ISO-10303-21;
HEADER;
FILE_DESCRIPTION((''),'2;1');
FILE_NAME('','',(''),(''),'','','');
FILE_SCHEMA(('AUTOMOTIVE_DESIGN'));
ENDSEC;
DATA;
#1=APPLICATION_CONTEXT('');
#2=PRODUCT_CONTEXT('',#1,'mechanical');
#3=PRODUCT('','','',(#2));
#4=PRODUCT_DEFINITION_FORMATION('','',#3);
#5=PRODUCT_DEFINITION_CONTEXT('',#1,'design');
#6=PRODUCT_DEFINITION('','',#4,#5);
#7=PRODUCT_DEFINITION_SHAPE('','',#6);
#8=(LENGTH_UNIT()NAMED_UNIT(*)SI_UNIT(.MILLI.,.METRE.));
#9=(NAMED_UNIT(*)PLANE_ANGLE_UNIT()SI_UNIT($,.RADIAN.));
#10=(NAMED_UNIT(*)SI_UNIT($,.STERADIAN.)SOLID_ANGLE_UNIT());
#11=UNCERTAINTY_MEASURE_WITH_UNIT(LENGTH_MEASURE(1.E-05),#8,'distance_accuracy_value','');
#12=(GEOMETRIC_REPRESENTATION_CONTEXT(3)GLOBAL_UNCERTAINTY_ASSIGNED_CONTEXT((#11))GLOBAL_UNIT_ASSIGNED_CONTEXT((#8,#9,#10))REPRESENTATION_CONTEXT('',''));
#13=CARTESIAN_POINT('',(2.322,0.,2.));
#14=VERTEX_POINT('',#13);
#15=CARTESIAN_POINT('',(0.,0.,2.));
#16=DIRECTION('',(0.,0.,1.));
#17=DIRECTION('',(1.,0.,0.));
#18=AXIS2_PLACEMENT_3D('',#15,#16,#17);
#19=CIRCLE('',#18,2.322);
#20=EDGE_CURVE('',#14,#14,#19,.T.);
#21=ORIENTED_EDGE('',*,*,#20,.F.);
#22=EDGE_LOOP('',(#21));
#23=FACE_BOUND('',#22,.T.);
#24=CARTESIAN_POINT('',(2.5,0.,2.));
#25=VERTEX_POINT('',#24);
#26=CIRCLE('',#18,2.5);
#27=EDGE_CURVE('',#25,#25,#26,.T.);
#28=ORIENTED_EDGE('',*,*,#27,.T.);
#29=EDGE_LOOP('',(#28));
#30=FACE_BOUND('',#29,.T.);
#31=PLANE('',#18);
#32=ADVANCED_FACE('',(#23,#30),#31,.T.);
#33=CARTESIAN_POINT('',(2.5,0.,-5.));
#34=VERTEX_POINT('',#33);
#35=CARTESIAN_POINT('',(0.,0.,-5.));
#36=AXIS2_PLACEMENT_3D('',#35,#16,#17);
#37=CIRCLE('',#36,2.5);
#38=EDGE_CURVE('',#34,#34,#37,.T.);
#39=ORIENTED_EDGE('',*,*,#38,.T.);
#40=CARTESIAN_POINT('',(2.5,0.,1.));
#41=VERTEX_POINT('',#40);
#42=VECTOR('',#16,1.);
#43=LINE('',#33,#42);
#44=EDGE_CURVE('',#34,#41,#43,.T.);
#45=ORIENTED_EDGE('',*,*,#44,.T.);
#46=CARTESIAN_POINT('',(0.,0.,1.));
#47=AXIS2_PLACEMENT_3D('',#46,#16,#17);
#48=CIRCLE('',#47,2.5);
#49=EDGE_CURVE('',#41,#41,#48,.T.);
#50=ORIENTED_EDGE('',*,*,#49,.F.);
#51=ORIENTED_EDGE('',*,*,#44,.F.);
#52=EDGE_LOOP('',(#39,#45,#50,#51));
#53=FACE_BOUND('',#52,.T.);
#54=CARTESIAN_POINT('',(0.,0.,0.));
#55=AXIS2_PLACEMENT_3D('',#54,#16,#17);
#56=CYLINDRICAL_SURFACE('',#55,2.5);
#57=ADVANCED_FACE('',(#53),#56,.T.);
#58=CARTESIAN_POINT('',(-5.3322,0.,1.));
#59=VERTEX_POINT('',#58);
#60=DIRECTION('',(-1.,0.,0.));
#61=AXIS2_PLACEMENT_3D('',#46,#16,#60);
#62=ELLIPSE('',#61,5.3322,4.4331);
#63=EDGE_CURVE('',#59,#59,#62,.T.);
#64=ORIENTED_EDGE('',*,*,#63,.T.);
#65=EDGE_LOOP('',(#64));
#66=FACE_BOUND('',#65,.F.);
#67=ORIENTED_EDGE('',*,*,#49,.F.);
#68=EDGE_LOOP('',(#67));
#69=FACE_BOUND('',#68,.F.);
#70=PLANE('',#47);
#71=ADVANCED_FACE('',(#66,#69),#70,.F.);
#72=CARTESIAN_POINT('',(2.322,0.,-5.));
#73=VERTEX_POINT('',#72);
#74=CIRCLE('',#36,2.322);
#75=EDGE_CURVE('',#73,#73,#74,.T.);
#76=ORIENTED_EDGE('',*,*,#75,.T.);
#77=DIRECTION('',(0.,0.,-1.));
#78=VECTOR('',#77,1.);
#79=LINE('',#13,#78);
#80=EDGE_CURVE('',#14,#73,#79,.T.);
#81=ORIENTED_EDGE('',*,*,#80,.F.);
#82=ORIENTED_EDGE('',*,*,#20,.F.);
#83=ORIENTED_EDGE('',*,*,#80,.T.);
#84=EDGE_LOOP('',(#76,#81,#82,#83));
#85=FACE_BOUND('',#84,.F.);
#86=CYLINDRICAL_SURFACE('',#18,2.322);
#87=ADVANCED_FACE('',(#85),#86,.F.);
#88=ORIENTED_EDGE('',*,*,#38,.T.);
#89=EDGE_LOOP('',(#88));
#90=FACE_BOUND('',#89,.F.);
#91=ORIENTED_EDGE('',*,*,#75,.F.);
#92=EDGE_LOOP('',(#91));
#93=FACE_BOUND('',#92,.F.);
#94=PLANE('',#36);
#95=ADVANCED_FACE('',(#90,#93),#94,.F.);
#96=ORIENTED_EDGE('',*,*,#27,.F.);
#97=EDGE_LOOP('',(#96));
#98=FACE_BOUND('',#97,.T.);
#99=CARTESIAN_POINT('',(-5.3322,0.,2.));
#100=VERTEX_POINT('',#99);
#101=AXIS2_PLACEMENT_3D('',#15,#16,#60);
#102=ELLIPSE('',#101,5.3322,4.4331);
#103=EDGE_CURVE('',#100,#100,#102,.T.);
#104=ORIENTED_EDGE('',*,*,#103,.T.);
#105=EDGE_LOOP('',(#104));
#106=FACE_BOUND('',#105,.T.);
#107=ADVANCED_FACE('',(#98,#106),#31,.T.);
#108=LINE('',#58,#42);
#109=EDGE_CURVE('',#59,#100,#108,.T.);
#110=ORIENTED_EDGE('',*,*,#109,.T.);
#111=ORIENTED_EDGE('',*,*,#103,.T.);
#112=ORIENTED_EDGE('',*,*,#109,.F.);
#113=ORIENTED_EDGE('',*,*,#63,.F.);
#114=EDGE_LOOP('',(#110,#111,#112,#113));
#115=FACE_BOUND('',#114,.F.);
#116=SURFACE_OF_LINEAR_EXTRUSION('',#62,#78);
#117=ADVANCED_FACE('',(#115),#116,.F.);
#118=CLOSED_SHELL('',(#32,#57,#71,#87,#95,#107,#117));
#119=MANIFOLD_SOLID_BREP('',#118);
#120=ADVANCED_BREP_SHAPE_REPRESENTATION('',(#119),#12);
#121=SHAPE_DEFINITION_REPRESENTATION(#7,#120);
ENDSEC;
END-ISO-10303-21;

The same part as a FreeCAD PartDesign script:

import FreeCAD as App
import Part
import Sketcher

V = App.Vector
Q = App.Units.Quantity

doc = App.newDocument("Part")
body = doc.addObject("PartDesign::Body", "Body")

# Sketch on XY plane
sketch1 = body.newObject("Sketcher::SketchObject", "Sketch")
sketch1.AttachmentSupport = (doc.getObject("XY_Plane"), [""])
sketch1.MapMode = "FlatFace"
sketch1.addGeometry([
    Part.Circle(V(0, 0, 0), V(0, 0, 1), 2.5),
    Part.Circle(V(0, 0, 0), V(0, 0, 1), 1.9202),
], False)
sketch1.addConstraint([
    Sketcher.Constraint("Coincident", 0, 3, -1, 1),
    Sketcher.Constraint("Coincident", 1, 3, -1, 1),
    Sketcher.Constraint("Diameter", 0, Q("5 mm")),
    Sketcher.Constraint("Diameter", 1, Q("3.8404 mm")),
])
pad1 = body.newObject("PartDesign::Pad", "Pad")
pad1.Profile = sketch1
pad1.Length = 5
pad1.Reversed = True

# Sketch on XY plane
sketch2 = body.newObject("Sketcher::SketchObject", "Sketch001")
sketch2.AttachmentSupport = (doc.getObject("XY_Plane"), [""])
sketch2.MapMode = "FlatFace"
sketch2.addGeometry([
    Part.Circle(V(0, 0, 0), V(0, 0, 1), 2.5),
    Part.Circle(V(0, 0, 0), V(0, 0, 1), 1.9202),
], False)
sketch2.addConstraint([
    Sketcher.Constraint("Coincident", 0, 3, -1, 1),
    Sketcher.Constraint("Coincident", 1, 3, -1, 1),
    Sketcher.Constraint("Diameter", 0, Q("5 mm")),
    Sketcher.Constraint("Diameter", 1, Q("3.8404 mm")),
])
pad2 = body.newObject("PartDesign::Pad", "Pad001")
pad2.Profile = sketch2
pad2.Length = 1

# Sketch on XY plane
sketch3 = body.newObject("Sketcher::SketchObject", "Sketch002")
sketch3.AttachmentSupport = (doc.getObject("XY_Plane"), [""])
sketch3.MapMode = "FlatFace"
sketch3.AttachmentOffset = App.Placement(V(0, 0, 1), App.Rotation())
sketch3.addGeometry([
    Part.Ellipse(V(-5.3322, 0, 0), V(0, -4.4331, 0), V(0, 0, 0)),
    Part.Circle(V(0, 0, 0), V(0, 0, 1), 1.9202),
], False)
sketch3.addConstraint([
    Sketcher.Constraint("Block", 0),
    Sketcher.Constraint("Coincident", 1, 3, -1, 1),
    Sketcher.Constraint("Diameter", 1, Q("3.8404 mm")),
])
pad3 = body.newObject("PartDesign::Pad", "Pad002")
pad3.Profile = sketch3
pad3.Length = 1

# Sketch on XY plane
sketch4 = body.newObject("Sketcher::SketchObject", "Sketch003")
sketch4.AttachmentSupport = (doc.getObject("XY_Plane"), [""])
sketch4.MapMode = "FlatFace"
sketch4.AttachmentOffset = App.Placement(V(0, 0, 2), App.Rotation())
sketch4.addGeometry(Part.Circle(V(0, 0, 0), V(0, 0, 1), 2.322), False)
sketch4.addConstraint([
    Sketcher.Constraint("Coincident", 0, 3, -1, 1),
    Sketcher.Constraint("Diameter", 0, Q("4.644 mm")),
])
pocket1 = body.newObject("PartDesign::Pocket", "Pocket")
pocket1.Profile = sketch4
pocket1.Type = "ThroughAll"

doc.recompute()
